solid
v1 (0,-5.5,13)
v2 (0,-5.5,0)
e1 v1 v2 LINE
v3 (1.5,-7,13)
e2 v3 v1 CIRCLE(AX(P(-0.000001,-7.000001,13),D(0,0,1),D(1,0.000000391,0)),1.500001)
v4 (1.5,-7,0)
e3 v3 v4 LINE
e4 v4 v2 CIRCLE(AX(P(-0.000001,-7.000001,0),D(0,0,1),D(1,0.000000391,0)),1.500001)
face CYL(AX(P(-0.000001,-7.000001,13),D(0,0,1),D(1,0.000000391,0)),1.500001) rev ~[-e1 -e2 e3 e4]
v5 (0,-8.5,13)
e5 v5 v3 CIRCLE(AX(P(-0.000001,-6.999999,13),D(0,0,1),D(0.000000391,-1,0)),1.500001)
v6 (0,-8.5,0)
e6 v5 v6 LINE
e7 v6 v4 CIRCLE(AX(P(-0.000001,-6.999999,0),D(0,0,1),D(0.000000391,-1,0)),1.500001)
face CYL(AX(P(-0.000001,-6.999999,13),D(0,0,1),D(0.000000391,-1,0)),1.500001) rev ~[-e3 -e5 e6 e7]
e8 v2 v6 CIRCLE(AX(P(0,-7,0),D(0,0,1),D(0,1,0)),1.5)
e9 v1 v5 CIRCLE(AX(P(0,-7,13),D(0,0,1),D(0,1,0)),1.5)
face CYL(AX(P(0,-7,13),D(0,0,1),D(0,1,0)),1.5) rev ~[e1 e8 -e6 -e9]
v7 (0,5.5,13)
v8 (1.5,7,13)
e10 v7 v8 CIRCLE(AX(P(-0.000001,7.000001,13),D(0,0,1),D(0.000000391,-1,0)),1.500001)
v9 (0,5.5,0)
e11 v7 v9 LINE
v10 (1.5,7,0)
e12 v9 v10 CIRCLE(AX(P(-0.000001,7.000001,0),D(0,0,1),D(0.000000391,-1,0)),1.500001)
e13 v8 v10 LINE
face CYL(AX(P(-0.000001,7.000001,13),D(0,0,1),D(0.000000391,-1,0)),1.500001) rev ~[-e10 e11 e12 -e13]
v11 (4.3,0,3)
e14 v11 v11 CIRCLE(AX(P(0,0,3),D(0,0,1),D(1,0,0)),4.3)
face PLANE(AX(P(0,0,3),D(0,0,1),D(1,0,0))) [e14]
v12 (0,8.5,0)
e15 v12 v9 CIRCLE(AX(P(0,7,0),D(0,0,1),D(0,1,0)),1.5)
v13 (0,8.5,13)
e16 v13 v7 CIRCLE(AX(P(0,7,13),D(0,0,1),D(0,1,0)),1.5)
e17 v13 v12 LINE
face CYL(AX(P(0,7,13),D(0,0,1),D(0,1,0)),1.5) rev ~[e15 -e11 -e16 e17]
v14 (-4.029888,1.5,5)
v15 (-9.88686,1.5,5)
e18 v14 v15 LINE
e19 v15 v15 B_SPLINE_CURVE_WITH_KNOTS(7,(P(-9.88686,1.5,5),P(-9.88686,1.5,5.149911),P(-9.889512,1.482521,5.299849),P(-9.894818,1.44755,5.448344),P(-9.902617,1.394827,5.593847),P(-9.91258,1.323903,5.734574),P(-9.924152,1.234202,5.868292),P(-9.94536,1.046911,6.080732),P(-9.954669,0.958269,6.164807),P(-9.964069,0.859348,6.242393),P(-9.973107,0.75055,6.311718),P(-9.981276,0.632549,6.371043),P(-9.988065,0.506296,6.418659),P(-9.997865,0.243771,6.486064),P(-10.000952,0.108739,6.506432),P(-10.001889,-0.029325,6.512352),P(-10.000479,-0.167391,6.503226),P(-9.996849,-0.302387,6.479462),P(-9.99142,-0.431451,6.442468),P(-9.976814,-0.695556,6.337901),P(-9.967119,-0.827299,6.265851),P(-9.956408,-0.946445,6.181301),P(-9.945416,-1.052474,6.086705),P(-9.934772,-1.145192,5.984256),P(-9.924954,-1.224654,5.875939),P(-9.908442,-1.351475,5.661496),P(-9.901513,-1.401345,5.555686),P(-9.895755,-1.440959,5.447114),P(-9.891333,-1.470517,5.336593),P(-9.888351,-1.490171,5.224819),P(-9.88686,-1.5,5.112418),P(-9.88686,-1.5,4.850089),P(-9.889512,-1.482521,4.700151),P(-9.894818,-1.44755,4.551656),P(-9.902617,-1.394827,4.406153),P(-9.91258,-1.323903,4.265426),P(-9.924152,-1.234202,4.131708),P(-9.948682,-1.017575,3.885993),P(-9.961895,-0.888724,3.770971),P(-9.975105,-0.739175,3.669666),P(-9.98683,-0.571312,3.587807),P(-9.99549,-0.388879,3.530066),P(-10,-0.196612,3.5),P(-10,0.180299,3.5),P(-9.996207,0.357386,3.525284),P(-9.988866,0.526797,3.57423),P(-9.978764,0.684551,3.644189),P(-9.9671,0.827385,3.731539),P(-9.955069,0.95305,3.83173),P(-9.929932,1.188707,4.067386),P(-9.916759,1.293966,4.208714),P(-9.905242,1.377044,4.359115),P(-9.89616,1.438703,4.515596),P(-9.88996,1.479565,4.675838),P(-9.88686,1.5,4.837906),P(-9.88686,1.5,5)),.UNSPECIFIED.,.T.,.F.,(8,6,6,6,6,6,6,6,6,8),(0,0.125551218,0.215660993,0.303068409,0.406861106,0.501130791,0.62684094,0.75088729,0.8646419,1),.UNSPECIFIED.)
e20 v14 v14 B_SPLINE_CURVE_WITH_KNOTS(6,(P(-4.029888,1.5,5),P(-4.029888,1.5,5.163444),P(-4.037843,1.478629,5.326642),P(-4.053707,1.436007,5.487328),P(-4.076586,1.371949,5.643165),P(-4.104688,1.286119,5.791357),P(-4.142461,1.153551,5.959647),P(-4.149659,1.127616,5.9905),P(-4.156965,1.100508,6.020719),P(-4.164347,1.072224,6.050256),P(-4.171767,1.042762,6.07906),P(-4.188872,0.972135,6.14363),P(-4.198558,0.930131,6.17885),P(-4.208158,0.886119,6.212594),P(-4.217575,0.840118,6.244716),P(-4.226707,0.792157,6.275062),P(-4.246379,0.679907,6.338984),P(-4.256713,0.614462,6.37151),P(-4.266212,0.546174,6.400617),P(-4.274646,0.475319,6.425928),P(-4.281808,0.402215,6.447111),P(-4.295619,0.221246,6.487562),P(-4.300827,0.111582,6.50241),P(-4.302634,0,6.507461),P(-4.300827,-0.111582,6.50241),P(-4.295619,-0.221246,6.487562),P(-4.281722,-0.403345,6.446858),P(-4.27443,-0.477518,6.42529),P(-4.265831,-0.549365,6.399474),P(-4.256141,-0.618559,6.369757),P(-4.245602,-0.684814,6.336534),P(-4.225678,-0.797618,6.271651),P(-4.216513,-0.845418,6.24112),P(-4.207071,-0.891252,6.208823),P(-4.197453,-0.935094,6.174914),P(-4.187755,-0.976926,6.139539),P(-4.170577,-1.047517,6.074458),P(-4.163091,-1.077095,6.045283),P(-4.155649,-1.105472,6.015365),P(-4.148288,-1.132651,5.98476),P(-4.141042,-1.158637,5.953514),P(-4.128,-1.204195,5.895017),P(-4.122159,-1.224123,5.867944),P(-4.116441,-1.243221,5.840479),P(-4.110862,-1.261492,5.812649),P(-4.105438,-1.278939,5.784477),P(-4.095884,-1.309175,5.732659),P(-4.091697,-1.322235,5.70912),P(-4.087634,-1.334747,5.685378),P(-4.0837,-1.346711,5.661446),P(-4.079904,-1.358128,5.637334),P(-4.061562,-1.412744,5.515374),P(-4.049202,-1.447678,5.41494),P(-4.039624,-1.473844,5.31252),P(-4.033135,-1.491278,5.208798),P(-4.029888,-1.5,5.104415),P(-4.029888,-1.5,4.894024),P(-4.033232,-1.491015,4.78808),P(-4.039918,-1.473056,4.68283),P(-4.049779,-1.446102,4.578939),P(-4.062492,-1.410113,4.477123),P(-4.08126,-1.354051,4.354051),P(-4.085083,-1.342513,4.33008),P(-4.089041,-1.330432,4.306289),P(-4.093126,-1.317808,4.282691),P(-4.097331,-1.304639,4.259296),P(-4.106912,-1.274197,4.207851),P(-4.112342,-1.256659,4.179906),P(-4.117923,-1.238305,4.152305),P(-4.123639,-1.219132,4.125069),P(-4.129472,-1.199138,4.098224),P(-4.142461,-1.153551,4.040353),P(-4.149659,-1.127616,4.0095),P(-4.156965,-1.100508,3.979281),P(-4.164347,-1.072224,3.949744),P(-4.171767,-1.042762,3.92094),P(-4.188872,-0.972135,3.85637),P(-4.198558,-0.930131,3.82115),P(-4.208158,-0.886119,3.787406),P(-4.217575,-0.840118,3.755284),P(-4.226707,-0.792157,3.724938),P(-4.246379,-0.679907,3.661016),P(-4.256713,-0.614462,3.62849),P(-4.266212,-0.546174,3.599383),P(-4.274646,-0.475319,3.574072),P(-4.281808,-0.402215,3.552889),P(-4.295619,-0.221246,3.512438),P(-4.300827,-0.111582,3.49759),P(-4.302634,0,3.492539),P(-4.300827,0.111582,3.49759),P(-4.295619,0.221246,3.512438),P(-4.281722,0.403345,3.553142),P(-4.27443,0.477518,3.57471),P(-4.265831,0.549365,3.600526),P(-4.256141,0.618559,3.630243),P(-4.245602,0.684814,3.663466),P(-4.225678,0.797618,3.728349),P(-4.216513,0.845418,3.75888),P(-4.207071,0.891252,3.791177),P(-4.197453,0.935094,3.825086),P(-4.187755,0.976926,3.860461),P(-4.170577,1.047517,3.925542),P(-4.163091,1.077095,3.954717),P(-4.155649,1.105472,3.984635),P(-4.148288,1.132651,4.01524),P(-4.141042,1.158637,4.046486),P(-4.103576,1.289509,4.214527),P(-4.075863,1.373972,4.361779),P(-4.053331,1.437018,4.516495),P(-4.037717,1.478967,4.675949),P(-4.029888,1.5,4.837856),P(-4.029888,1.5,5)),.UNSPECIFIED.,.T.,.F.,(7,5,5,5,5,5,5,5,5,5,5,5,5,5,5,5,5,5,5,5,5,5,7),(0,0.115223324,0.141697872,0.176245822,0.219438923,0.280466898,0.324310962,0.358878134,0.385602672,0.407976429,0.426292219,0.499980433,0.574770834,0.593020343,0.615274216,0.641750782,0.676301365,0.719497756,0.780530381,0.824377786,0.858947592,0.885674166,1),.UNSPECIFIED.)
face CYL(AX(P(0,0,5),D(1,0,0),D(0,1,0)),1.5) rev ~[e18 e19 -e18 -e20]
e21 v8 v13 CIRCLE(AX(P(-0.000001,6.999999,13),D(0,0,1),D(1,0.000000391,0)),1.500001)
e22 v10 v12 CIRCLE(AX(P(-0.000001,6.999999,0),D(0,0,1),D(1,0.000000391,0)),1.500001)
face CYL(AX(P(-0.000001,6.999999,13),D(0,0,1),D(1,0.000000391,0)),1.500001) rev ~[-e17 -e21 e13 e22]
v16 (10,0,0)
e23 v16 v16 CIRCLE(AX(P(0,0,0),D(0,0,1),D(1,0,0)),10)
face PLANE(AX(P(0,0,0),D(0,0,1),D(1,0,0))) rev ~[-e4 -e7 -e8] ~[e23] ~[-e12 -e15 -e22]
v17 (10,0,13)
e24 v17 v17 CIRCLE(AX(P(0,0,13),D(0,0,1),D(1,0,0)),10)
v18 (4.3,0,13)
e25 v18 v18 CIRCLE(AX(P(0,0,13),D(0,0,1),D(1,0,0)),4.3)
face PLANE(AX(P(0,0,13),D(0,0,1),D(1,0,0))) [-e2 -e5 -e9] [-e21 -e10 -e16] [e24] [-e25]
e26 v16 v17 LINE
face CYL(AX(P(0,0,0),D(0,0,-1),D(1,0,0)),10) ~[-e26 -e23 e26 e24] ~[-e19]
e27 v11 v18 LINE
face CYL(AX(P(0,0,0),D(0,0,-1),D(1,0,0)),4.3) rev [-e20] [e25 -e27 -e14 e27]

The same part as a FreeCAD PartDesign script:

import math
import FreeCAD as App
import Part
import Sketcher

doc = App.newDocument("Part")
body = doc.addObject("PartDesign::Body", "Body")

sketch1 = doc.addObject("Sketcher::SketchObject", "Sketch")
body.addObject(sketch1)
sketch1.AttachmentSupport = (doc.XY_Plane, [""])
sketch1.MapMode = "FlatFace"
sketch1.addGeometry([
    Part.Circle(App.Vector(0, 0, 0), App.Vector(0, 0, 1), 10),
    Part.Circle(App.Vector(0, 0, 0), App.Vector(0, 0, 1), 4.3),
], False)
sketch1.addConstraint([
    Sketcher.Constraint("Coincident", 0, 3, -1, 1),
    Sketcher.Constraint("Coincident", 1, 3, -1, 1),
    Sketcher.Constraint("Diameter", 0, 20.0),
    Sketcher.Constraint("Diameter", 1, 8.6),
])
pad1 = doc.addObject("PartDesign::Pad", "Pad")
body.addObject(pad1)
pad1.Profile = sketch1
pad1.Length = 13

sketch2 = doc.addObject("Sketcher::SketchObject", "Sketch001")
body.addObject(sketch2)
sketch2.AttachmentSupport = (doc.XY_Plane, [""])
sketch2.MapMode = "FlatFace"
sketch2.addGeometry(Part.Circle(App.Vector(0, 0, 0), App.Vector(0, 0, 1), 4.3), False)
sketch2.addConstraint([
    Sketcher.Constraint("Coincident", 0, 3, -1, 1),
    Sketcher.Constraint("Diameter", 0, 8.6),
])
pad2 = doc.addObject("PartDesign::Pad", "Pad001")
body.addObject(pad2)
pad2.Profile = sketch2
pad2.Length = 3

sketch3 = doc.addObject("Sketcher::SketchObject", "Sketch002")
body.addObject(sketch3)
sketch3.AttachmentSupport = (doc.XY_Plane, [""])
sketch3.MapMode = "FlatFace"
sketch3.AttachmentOffset = App.Placement(App.Vector(0, 0, 13), App.Rotation())
sketch3.addGeometry([
    Part.ArcOfCircle(Part.Circle(App.Vector(0, -7, 0), App.Vector(0, 0, 1), 1.5), math.radians(90), math.radians(270)),
    Part.ArcOfCircle(Part.Circle(App.Vector(0, -7, 0), App.Vector(0, 0, 1), 1.5), math.radians(-90), math.radians(0)),
    Part.ArcOfCircle(Part.Circle(App.Vector(0, -7, 0), App.Vector(0, 0, 1), 1.5), math.radians(0), math.radians(90)),
    Part.ArcOfCircle(Part.Circle(App.Vector(0, 7, 0), App.Vector(0, 0, 1), 1.5), math.radians(90), math.radians(270)),
    Part.ArcOfCircle(Part.Circle(App.Vector(0, 7, 0), App.Vector(0, 0, 1), 1.5), math.radians(-90), math.radians(0)),
    Part.ArcOfCircle(Part.Circle(App.Vector(0, 7, 0), App.Vector(0, 0, 1), 1.5), math.radians(0), math.radians(90)),
], False)
sketch3.addConstraint([
    Sketcher.Constraint("Tangent", 0, 2, 1, 1),
    Sketcher.Constraint("Tangent", 1, 2, 2, 1),
    Sketcher.Constraint("Tangent", 2, 2, 0, 1),
    Sketcher.Constraint("Tangent", 3, 2, 4, 1),
    Sketcher.Constraint("Tangent", 4, 2, 5, 1),
    Sketcher.Constraint("Tangent", 5, 2, 3, 1),
    Sketcher.Constraint("Equal", 2, 3),
    Sketcher.Constraint("Symmetric", 0, 3, 3, 3, -1, 1),
    Sketcher.Constraint("Symmetric", 1, 2, 4, 2, -1),
    Sketcher.Constraint("PointOnObject", 0, 2, -2),
    Sketcher.Constraint("PointOnObject", 2, 2, -2),
    Sketcher.Constraint("PointOnObject", 3, 2, -2),
    Sketcher.Constraint("PointOnObject", 5, 2, -2),
    Sketcher.Constraint("Horizontal", 2, 3, 1, 2),
    Sketcher.Constraint("Radius", 0, 1.5),
    Sketcher.Constraint("DistanceY", 0, 3, -1, 1, 7.0),
])
pocket1 = doc.addObject("PartDesign::Pocket", "Pocket")
body.addObject(pocket1)
pocket1.Profile = sketch3
pocket1.Length = 25.4

sketch4 = doc.addObject("Sketcher::SketchObject", "Sketch003")
body.addObject(sketch4)
sketch4.AttachmentSupport = (doc.YZ_Plane, [""])
sketch4.MapMode = "FlatFace"
sketch4.addGeometry(Part.Circle(App.Vector(0, 5, 0), App.Vector(0, 0, 1), 1.5), False)
sketch4.addConstraint([
    Sketcher.Constraint("PointOnObject", 0, 3, -2),
    Sketcher.Constraint("Diameter", 0, 3.0),
    Sketcher.Constraint("DistanceY", -1, 1, 0, 3, 5.0),
])
pocket2 = doc.addObject("PartDesign::Pocket", "Pocket001")
body.addObject(pocket2)
pocket2.Profile = sketch4
pocket2.Length = 25.4

doc.recompute()
